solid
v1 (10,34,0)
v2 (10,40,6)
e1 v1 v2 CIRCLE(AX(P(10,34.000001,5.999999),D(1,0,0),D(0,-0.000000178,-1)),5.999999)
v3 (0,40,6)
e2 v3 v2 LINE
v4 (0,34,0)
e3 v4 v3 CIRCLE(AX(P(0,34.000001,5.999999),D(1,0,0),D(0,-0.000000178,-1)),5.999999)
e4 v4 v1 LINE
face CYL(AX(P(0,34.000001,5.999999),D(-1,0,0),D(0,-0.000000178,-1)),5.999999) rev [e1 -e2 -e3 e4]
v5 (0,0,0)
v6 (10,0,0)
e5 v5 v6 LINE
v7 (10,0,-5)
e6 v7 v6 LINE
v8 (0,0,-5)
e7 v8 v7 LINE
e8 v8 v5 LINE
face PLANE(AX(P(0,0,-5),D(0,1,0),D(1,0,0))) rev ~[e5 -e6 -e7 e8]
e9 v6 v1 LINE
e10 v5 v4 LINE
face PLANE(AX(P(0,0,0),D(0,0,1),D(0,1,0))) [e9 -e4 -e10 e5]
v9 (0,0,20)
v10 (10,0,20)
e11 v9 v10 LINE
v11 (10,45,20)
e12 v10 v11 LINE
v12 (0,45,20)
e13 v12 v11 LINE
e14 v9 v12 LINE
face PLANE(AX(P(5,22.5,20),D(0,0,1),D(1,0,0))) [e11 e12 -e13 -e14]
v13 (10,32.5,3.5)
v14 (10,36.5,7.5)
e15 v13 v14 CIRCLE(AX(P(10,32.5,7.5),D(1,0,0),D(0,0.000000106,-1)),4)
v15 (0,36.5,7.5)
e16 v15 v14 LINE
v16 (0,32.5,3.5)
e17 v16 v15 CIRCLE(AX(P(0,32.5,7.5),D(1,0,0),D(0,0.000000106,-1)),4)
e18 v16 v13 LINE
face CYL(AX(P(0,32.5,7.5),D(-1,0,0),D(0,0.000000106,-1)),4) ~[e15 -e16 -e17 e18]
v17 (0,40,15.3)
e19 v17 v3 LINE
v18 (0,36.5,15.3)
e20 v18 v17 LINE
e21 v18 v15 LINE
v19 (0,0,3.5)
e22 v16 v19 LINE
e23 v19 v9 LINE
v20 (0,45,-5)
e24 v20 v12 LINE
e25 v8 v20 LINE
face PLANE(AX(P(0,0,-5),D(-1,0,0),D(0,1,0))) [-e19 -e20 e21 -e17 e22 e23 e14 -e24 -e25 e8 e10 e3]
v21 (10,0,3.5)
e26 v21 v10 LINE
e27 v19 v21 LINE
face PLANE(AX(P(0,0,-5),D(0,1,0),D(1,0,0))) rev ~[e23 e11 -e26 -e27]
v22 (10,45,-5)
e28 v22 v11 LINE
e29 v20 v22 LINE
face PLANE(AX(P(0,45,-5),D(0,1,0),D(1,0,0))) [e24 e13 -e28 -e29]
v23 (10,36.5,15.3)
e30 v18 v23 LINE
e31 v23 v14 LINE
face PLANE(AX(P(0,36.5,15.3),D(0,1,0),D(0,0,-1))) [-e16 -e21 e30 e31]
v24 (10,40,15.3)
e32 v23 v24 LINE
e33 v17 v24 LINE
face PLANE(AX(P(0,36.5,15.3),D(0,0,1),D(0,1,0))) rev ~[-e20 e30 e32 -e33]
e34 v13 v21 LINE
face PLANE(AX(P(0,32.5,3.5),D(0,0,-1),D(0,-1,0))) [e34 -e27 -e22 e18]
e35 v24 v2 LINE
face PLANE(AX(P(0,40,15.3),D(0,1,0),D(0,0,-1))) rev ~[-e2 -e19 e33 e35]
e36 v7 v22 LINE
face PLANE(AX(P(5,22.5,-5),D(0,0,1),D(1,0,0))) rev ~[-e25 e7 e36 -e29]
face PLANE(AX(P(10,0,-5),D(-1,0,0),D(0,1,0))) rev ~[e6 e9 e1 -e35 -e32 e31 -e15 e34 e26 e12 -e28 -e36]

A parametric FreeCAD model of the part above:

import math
import FreeCAD as App
import Part
import Sketcher

V = App.Vector
Q = App.Units.Quantity


def add_polygon(sketch, points):
    """Adds a closed chain of lines whose ends are joined by coincident constraints."""
    first, n = sketch.GeometryCount, len(points)
    for a, b in zip(points, points[1:] + points[:1]):
        sketch.addGeometry(Part.LineSegment(App.Vector(*a, 0), App.Vector(*b, 0)), False)
    for i in range(n):
        sketch.addConstraint(Sketcher.Constraint("Coincident", first + i, 2, first + (i + 1) % n, 1))

doc = App.newDocument("Part")
body = doc.addObject("PartDesign::Body", "Body")

sketch1 = body.newObject("Sketcher::SketchObject", "Sketch")
sketch1.AttachmentSupport = (doc.getObject("XY_Plane"), [""])
sketch1.MapMode = "FlatFace"
sketch1.AttachmentOffset = App.Placement(V(0, 0, -5), App.Rotation())
add_polygon(sketch1, [(0, 45), (0, 0), (10, 0), (10, 45)])
sketch1.addConstraint(Sketcher.Constraint("Vertical", 0))
sketch1.addConstraint(Sketcher.Constraint("Horizontal", 1))
sketch1.addConstraint(Sketcher.Constraint("Vertical", 2))
sketch1.addConstraint(Sketcher.Constraint("Horizontal", 3))
sketch1.addConstraint(Sketcher.Constraint("Coincident", 0, 2, -1, 1))
sketch1.addConstraint(Sketcher.Constraint("DistanceX", 1, 1, 1, 2, Q("10 mm")))
sketch1.addConstraint(Sketcher.Constraint("DistanceY", 0, 2, 0, 1, Q("45 mm")))
pad1 = body.newObject("PartDesign::Pad", "Pad")
pad1.Profile = sketch1
pad1.Length = 25

sketch2 = body.newObject("Sketcher::SketchObject", "Sketch001")
sketch2.AttachmentSupport = (doc.getObject("YZ_Plane"), [""])
sketch2.MapMode = "FlatFace"
sketch2.addGeometry(Part.LineSegment(V(40, 6, 0), V(40, 15.3, 0)), False)
sketch2.addGeometry(Part.LineSegment(V(40, 15.3, 0), V(36.5, 15.3, 0)), False)
sketch2.addGeometry(Part.LineSegment(V(36.5, 15.3, 0), V(36.5, 7.5, 0)), False)
sketch2.addGeometry(Part.ArcOfCircle(Part.Circle(V(32.5, 7.5, 0), V(0, 0, 1), 4), math.radians(-89.999994), math.radians(-0.000006)), False)
sketch2.addGeometry(Part.LineSegment(V(32.5, 3.5, 0), V(0, 3.5, 0)), False)
sketch2.addGeometry(Part.LineSegment(V(0, 3.5, 0), V(0, 0, 0)), False)
sketch2.addGeometry(Part.LineSegment(V(0, 0, 0), V(34, 0, 0)), False)
sketch2.addGeometry(Part.ArcOfCircle(Part.Circle(V(34.000001, 5.999999, 0), V(0, 0, 1), 5.999999), math.radians(-90.00001), math.radians(0.00001)), False)
sketch2.addConstraint(Sketcher.Constraint("Coincident", 0, 2, 1, 1))
sketch2.addConstraint(Sketcher.Constraint("Coincident", 1, 2, 2, 1))
sketch2.addConstraint(Sketcher.Constraint("Tangent", 2, 2, 3, 2))
sketch2.addConstraint(Sketcher.Constraint("Tangent", 3, 1, 4, 1))
sketch2.addConstraint(Sketcher.Constraint("Coincident", 4, 2, 5, 1))
sketch2.addConstraint(Sketcher.Constraint("Coincident", 5, 2, 6, 1))
sketch2.addConstraint(Sketcher.Constraint("Tangent", 6, 2, 7, 1))
sketch2.addConstraint(Sketcher.Constraint("Tangent", 7, 2, 0, 1))
sketch2.addConstraint(Sketcher.Constraint("Vertical", 0))
sketch2.addConstraint(Sketcher.Constraint("Horizontal", 1))
sketch2.addConstraint(Sketcher.Constraint("Vertical", 2))
sketch2.addConstraint(Sketcher.Constraint("Horizontal", 4))
sketch2.addConstraint(Sketcher.Constraint("Vertical", 5))
sketch2.addConstraint(Sketcher.Constraint("Horizontal", 6))
sketch2.addConstraint(Sketcher.Constraint("Coincident", 5, 2, -1, 1))
sketch2.addConstraint(Sketcher.Constraint("Equal", 1, 5))
sketch2.addConstraint(Sketcher.Constraint("Radius", 3, Q("4 mm")))
sketch2.addConstraint(Sketcher.Constraint("Radius", 7, Q("5.999999 mm")))
sketch2.addConstraint(Sketcher.Constraint("DistanceX", 6, 1, 6, 2, Q("34 mm")))
sketch2.addConstraint(Sketcher.Constraint("DistanceX", 1, 2, 1, 1, Q("3.5 mm")))
sketch2.addConstraint(Sketcher.Constraint("DistanceY", 0, 1, 0, 2, Q("9.3 mm")))
pocket1 = body.newObject("PartDesign::Pocket", "Pocket")
pocket1.Profile = sketch2
pocket1.Length = 10
pocket1.Reversed = True

doc.recompute()
